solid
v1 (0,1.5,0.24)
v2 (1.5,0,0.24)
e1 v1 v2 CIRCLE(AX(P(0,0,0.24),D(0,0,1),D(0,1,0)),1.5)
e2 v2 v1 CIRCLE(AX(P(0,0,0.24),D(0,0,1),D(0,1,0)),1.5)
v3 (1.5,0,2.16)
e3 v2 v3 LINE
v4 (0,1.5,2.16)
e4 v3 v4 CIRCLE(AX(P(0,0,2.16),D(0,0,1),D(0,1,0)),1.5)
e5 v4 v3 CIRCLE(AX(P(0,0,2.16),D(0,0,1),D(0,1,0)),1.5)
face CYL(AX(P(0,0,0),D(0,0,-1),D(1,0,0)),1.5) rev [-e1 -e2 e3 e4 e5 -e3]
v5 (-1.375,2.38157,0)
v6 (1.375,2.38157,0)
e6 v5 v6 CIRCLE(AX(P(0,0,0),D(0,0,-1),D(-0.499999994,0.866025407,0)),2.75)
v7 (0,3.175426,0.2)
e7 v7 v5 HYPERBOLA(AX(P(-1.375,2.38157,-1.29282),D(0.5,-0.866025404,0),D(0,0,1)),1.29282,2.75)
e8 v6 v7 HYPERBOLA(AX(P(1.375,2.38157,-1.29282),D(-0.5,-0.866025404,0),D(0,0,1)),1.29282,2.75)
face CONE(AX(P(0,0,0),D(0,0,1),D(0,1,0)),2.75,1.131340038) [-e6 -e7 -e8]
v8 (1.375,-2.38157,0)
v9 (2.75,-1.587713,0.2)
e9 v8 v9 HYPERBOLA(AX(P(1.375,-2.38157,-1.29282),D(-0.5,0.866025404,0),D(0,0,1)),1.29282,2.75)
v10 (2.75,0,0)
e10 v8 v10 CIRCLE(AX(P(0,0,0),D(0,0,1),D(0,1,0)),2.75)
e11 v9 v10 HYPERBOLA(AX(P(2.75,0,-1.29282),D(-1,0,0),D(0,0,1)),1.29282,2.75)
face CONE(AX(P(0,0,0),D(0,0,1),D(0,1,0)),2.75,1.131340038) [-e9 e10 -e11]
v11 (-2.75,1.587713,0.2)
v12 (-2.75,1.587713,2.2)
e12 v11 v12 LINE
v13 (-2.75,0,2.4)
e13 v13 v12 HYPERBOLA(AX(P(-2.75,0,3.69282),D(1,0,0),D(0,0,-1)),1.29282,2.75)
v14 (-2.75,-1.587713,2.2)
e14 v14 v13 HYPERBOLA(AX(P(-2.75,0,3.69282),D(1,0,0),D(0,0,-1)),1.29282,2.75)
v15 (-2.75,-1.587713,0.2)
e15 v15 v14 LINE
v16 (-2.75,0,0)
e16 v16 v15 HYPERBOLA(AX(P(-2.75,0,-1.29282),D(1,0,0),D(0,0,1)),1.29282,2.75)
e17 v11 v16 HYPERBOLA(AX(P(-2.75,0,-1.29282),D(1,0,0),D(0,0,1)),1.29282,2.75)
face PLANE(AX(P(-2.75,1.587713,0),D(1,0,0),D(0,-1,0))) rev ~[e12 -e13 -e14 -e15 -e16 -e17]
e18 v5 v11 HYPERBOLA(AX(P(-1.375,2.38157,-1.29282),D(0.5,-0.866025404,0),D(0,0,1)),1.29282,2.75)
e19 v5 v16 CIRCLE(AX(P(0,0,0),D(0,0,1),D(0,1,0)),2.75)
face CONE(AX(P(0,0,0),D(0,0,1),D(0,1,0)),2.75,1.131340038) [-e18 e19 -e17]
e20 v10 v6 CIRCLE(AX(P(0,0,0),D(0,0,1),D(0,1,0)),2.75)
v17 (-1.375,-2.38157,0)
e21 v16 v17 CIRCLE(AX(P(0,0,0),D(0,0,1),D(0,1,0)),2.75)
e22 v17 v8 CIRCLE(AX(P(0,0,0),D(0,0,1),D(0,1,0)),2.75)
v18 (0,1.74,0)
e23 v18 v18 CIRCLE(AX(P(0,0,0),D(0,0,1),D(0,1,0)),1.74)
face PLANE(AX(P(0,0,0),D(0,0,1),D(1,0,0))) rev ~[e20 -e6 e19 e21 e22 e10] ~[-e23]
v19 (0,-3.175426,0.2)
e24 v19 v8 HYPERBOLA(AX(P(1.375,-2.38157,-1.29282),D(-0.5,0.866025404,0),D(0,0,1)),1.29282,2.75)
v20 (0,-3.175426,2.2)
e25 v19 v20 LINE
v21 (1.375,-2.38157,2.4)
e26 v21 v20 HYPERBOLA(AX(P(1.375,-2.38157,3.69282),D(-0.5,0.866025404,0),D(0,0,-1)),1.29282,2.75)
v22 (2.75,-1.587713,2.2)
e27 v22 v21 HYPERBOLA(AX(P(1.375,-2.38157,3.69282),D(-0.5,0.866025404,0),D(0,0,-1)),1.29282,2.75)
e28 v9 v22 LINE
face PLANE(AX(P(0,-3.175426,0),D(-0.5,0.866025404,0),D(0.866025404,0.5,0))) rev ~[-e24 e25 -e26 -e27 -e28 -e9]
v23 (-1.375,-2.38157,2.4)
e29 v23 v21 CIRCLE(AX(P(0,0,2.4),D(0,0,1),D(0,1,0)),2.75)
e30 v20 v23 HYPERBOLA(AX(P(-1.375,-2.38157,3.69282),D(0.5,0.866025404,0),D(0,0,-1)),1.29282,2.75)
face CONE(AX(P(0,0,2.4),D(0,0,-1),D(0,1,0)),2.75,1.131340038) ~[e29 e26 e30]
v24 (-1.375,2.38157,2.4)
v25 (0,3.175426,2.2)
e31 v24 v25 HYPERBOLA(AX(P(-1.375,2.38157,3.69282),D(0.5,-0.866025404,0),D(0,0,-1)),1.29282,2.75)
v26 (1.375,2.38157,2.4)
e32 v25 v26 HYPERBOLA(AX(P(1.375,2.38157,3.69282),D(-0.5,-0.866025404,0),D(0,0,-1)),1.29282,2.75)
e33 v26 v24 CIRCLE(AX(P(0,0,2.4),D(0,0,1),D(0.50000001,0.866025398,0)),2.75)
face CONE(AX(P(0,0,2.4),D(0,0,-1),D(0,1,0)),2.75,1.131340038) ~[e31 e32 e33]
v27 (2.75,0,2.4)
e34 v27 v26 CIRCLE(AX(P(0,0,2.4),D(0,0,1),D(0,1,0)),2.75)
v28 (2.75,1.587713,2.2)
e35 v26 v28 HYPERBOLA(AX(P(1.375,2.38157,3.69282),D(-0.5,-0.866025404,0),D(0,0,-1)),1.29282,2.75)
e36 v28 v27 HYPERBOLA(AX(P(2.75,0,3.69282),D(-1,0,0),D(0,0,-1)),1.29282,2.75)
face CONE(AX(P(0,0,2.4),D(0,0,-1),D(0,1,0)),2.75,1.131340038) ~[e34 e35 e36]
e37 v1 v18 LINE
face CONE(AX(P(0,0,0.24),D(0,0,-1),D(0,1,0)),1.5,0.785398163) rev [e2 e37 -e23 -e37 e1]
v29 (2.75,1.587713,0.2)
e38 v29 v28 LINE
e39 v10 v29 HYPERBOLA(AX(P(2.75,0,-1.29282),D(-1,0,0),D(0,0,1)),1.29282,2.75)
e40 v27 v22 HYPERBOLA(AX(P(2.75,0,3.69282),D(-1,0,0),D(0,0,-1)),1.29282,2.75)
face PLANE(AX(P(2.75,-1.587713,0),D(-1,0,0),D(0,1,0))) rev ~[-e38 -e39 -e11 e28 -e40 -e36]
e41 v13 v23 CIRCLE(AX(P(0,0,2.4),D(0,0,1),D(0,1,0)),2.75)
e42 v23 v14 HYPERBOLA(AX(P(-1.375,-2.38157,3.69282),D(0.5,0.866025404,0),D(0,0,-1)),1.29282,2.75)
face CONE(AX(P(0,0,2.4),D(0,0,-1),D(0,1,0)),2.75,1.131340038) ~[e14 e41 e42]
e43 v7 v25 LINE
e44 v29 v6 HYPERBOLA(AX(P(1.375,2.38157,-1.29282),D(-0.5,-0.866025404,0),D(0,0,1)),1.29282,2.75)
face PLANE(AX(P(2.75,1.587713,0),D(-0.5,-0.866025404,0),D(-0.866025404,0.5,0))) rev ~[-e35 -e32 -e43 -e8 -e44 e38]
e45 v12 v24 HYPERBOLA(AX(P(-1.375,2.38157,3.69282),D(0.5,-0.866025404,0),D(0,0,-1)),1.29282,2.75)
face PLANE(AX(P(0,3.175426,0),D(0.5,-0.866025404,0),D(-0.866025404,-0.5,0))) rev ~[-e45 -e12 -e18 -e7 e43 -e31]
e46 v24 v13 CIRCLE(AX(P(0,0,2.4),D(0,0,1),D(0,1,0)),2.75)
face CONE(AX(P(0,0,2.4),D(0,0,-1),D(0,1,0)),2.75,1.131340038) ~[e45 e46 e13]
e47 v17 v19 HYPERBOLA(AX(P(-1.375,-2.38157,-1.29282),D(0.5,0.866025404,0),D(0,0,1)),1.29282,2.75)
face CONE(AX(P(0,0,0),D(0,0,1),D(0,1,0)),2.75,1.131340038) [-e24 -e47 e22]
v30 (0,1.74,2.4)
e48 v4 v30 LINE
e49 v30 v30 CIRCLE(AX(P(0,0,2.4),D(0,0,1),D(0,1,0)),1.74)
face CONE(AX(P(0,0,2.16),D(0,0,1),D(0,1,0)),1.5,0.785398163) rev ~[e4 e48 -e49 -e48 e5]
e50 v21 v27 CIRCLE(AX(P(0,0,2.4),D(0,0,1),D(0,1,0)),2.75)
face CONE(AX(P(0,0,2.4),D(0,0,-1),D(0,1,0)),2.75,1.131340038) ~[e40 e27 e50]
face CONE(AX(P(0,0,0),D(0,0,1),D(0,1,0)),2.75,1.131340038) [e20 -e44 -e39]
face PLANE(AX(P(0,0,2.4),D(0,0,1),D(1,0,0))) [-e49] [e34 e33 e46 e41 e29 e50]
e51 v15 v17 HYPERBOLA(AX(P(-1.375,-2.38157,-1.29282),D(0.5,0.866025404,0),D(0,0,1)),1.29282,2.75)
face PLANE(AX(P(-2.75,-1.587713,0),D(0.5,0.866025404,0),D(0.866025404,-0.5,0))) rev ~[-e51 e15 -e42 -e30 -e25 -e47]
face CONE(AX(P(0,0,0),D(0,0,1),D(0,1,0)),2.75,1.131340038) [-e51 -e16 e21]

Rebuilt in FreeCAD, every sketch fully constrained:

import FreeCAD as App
import Part
import Sketcher
Q = App.Units.Quantity

doc = App.newDocument("Part")
params = doc.addObject("Spreadsheet::Sheet", "Params")
for row, (alias, value) in enumerate([
    ("sketch1_diameter", "3 mm"),
    ("pad1_length", "2.4 mm"),
    ("sketch2_height", "0.2 mm"),
    ("sketch2_width", "0.24 mm"),
    ("groove_angle", "360 deg"),
], start=1):
    params.set(f"A{row}", alias)
    params.set(f"B{row}", "=" + value)
    params.setAlias(f"B{row}", alias)

body = doc.addObject("PartDesign::Body", "Body")

sketch1 = body.newObject("Sketcher::SketchObject", "Sketch")
sketch1.AttachmentSupport = (doc.getObject("XY_Plane"), [""])
sketch1.MapMode = "FlatFace"
sketch1.addGeometry([
    Part.LineSegment(App.Vector(0, -3.2, 0), App.Vector(2.8, -1.6, 0)),
    Part.LineSegment(App.Vector(2.8, -1.6, 0), App.Vector(2.8, 1.6, 0)),
    Part.LineSegment(App.Vector(2.8, 1.6, 0), App.Vector(0, 3.2, 0)),
    Part.LineSegment(App.Vector(0, 3.2, 0), App.Vector(-2.8, 1.6, 0)),
    Part.LineSegment(App.Vector(-2.8, 1.6, 0), App.Vector(-2.8, -1.6, 0)),
    Part.LineSegment(App.Vector(-2.8, -1.6, 0), App.Vector(0, -3.2, 0)),
    Part.Circle(App.Vector(0, 0, 0), App.Vector(0, 0, 1), 1.5),
], False)
sketch1.addConstraint([
    Sketcher.Constraint("Coincident", 0, 2, 1, 1),
    Sketcher.Constraint("Coincident", 1, 2, 2, 1),
    Sketcher.Constraint("Coincident", 2, 2, 3, 1),
    Sketcher.Constraint("Coincident", 3, 2, 4, 1),
    Sketcher.Constraint("Coincident", 4, 2, 5, 1),
    Sketcher.Constraint("Coincident", 5, 2, 0, 1),
    Sketcher.Constraint("Vertical", 1),
    Sketcher.Constraint("Vertical", 4),
    Sketcher.Constraint("Coincident", 6, 3, -1, 1),
    Sketcher.Constraint("Symmetric", 0, 2, 3, 2, -1, 1),
    Sketcher.Constraint("Symmetric", 2, 2, 5, 2, -1, 1),
    Sketcher.Constraint("PointOnObject", 2, 2, -2),
    Sketcher.Constraint("Parallel", 2, 5),
    Sketcher.Constraint("Horizontal", 1, 2, 3, 2),
    Sketcher.Constraint("Diameter", 6, 3.0),
    Sketcher.Constraint("Angle", 0, Q("30 deg")),
    Sketcher.Constraint("DistanceX", 3, 2, 1, 2, 5.5),
    Sketcher.Constraint("DistanceY", 1, 1, 1, 2, 3.175426),
])
sketch1.setExpression("Constraints[14]", "Params.sketch1_diameter")
pad1 = body.newObject("PartDesign::Pad", "Pad")
pad1.Profile = sketch1
pad1.setExpression("Length", "Params.pad1_length")

sketch2 = body.newObject("Sketcher::SketchObject", "Sketch001")
sketch2.AttachmentSupport = (doc.getObject("YZ_Plane"), [""])
sketch2.MapMode = "FlatFace"
sketch2.addGeometry([
    Part.LineSegment(App.Vector(3.18, 2.4, 0), App.Vector(2.75, 2.4, 0)),
    Part.LineSegment(App.Vector(2.75, 2.4, 0), App.Vector(3.18, 2.2, 0)),
    Part.LineSegment(App.Vector(3.18, 2.2, 0), App.Vector(3.18, 2.4, 0)),
    Part.LineSegment(App.Vector(3.18, 0, 0), App.Vector(3.18, 0.2, 0)),
    Part.LineSegment(App.Vector(3.18, 0.2, 0), App.Vector(2.75, 0, 0)),
    Part.LineSegment(App.Vector(2.75, 0, 0), App.Vector(3.18, 0, 0)),
    Part.LineSegment(App.Vector(1.5, 2.4, 0), App.Vector(1.5, 2.16, 0)),
    Part.LineSegment(App.Vector(1.5, 2.16, 0), App.Vector(1.74, 2.4, 0)),
    Part.LineSegment(App.Vector(1.74, 2.4, 0), App.Vector(1.5, 2.4, 0)),
    Part.LineSegment(App.Vector(1.5, 0.24, 0), App.Vector(1.5, 0, 0)),
    Part.LineSegment(App.Vector(1.5, 0, 0), App.Vector(1.74, 0, 0)),
    Part.LineSegment(App.Vector(1.74, 0, 0), App.Vector(1.5, 0.24, 0)),
], False)
sketch2.addConstraint([
    Sketcher.Constraint("Coincident", 0, 2, 1, 1),
    Sketcher.Constraint("Coincident", 1, 2, 2, 1),
    Sketcher.Constraint("Coincident", 2, 2, 0, 1),
    Sketcher.Constraint("Coincident", 3, 2, 4, 1),
    Sketcher.Constraint("Coincident", 4, 2, 5, 1),
    Sketcher.Constraint("Coincident", 5, 2, 3, 1),
    Sketcher.Constraint("Coincident", 6, 2, 7, 1),
    Sketcher.Constraint("Coincident", 7, 2, 8, 1),
    Sketcher.Constraint("Coincident", 8, 2, 6, 1),
    Sketcher.Constraint("Coincident", 9, 2, 10, 1),
    Sketcher.Constraint("Coincident", 10, 2, 11, 1),
    Sketcher.Constraint("Coincident", 11, 2, 9, 1),
    Sketcher.Constraint("Horizontal", 0),
    Sketcher.Constraint("Vertical", 2),
    Sketcher.Constraint("Vertical", 3),
    Sketcher.Constraint("Horizontal", 5),
    Sketcher.Constraint("Vertical", 6),
    Sketcher.Constraint("Horizontal", 8),
    Sketcher.Constraint("Vertical", 9),
    Sketcher.Constraint("Horizontal", 10),
    Sketcher.Constraint("PointOnObject", 4, 2, -1),
    Sketcher.Constraint("PointOnObject", 9, 2, -1),
    Sketcher.Constraint("Perpendicular", 7, 11),
    Sketcher.Constraint("Horizontal", 2, 2, 7, 2),
    Sketcher.Constraint("Vertical", 2, 2, 3, 2),
    Sketcher.Constraint("Vertical", 0, 2, 4, 2),
    Sketcher.Constraint("Vertical", 8, 2, 9, 2),
    Sketcher.Constraint("Vertical", 7, 2, 10, 2),
    Sketcher.Constraint("Equal", 2, 3),
    Sketcher.Constraint("Equal", 10, 6),
    Sketcher.Constraint("DistanceY", 2, 1, 2, 2, 0.2),
    Sketcher.Constraint("DistanceY", 3, 2, 1, 2, 2.0),
    Sketcher.Constraint("DistanceX", 8, 2, 8, 1, 0.24),
    Sketcher.Constraint("DistanceX", -1, 1, 6, 2, 1.5),
    Sketcher.Constraint("DistanceX", -1, 1, 0, 2, 2.75),
    Sketcher.Constraint("DistanceX", 0, 2, 0, 1, 0.425426),
])
sketch2.setExpression("Constraints[30]", "Params.sketch2_height")
sketch2.setExpression("Constraints[32]", "Params.sketch2_width")
groove = body.newObject("PartDesign::Groove", "Groove")
groove.Profile = sketch2
groove.ReferenceAxis = (sketch2, ["V_Axis"])
groove.setExpression("Angle", "Params.groove_angle")

doc.recompute()
